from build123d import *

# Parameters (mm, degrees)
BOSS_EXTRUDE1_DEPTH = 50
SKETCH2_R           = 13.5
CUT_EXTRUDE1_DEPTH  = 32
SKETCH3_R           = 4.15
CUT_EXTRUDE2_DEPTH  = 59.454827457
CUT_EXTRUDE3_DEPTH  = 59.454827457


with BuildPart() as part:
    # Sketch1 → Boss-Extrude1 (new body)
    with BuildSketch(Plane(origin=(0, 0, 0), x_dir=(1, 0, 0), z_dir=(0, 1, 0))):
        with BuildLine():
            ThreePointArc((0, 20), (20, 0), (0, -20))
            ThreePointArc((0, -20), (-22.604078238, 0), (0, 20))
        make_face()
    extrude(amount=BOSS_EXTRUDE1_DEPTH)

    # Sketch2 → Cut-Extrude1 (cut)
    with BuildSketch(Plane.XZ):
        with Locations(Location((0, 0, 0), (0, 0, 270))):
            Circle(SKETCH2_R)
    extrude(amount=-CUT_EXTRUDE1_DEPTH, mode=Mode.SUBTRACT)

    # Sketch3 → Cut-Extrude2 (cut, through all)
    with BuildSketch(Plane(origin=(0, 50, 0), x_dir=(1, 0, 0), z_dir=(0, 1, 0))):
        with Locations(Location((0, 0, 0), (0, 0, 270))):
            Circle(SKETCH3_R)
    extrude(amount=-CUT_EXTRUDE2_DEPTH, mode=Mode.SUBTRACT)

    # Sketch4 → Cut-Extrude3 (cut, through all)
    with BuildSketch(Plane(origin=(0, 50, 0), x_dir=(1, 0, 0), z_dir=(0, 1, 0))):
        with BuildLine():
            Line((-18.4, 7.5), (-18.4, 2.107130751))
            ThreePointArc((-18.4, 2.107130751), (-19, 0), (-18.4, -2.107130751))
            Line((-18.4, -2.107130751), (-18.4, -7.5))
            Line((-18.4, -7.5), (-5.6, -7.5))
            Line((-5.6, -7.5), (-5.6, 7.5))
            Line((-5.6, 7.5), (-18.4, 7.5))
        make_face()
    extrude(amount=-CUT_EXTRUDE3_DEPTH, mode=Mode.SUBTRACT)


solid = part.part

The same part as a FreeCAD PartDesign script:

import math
import FreeCAD as App
import Part
import Sketcher

V = App.Vector
Q = App.Units.Quantity

doc = App.newDocument("Part")
body = doc.addObject("PartDesign::Body", "Body")

# Sketch on XZ plane
sketch1 = body.newObject("Sketcher::SketchObject", "Sketch")
sketch1.AttachmentSupport = (doc.getObject("XZ_Plane"), [""])
sketch1.MapMode = "FlatFace"
sketch1.addGeometry([
    Part.ArcOfCircle(Part.Circle(V(0, 0, 0), V(0, 0, 1), 20), math.radians(-90), math.radians(90)),
    Part.ArcOfCircle(Part.Circle(V(-2, 0, 0), V(0, 0, 1), 20), math.radians(83), math.radians(277)),
], False)
sketch1.addConstraint([
    Sketcher.Constraint("Coincident", 0, 1, 1, 2),
    Sketcher.Constraint("Coincident", 1, 1, 0, 2),
    Sketcher.Constraint("Coincident", 0, 3, -1, 1),
    Sketcher.Constraint("PointOnObject", 1, 3, -1),
    Sketcher.Constraint("PointOnObject", 0, 1, -2),
    Sketcher.Constraint("Radius", 0, Q("20 mm")),
    Sketcher.Constraint("Radius", 1, Q("20.15 mm")),
])
pad1 = body.newObject("PartDesign::Pad", "Pad")
pad1.Profile = sketch1
pad1.Length = 50
pad1.Reversed = True

# Sketch on XZ plane
sketch2 = body.newObject("Sketcher::SketchObject", "Sketch001")
sketch2.AttachmentSupport = (doc.getObject("XZ_Plane"), [""])
sketch2.MapMode = "FlatFace"
sketch2.addGeometry(Part.Circle(V(0, 0, 0), V(0, 0, 1), 14), False)
sketch2.addConstraint([
    Sketcher.Constraint("Coincident", 0, 3, -1, 1),
    Sketcher.Constraint("Diameter", 0, Q("27 mm")),
])
pocket1 = body.newObject("PartDesign::Pocket", "Pocket")
pocket1.Profile = sketch2
pocket1.Length = 32

# Sketch on XZ plane
sketch3 = body.newObject("Sketcher::SketchObject", "Sketch002")
sketch3.AttachmentSupport = (doc.getObject("XZ_Plane"), [""])
sketch3.MapMode = "FlatFace"
sketch3.AttachmentOffset = App.Placement(V(0, 0, -50), App.Rotation())
sketch3.addGeometry(Part.Circle(V(0, 0, 0), V(0, 0, 1), 4.2), False)
sketch3.addConstraint([
    Sketcher.Constraint("Coincident", 0, 3, -1, 1),
    Sketcher.Constraint("Diameter", 0, Q("8.3 mm")),
])
pocket2 = body.newObject("PartDesign::Pocket", "Pocket001")
pocket2.Profile = sketch3
pocket2.Type = "ThroughAll"
pocket2.Reversed = True

# Sketch on XZ plane
sketch4 = body.newObject("Sketcher::SketchObject", "Sketch003")
sketch4.AttachmentSupport = (doc.getObject("XZ_Plane"), [""])
sketch4.MapMode = "FlatFace"
sketch4.AttachmentOffset = App.Placement(V(0, 0, -50), App.Rotation())
sketch4.addGeometry([
    Part.LineSegment(V(-18.4, -7.5, 0), V(-18.4, -2.1, 0)),  # 0
    Part.ArcOfCircle(Part.Circle(V(-15, 0, 0), V(0, 0, 1), 4), math.radians(148), math.radians(212)),  # 1
    Part.LineSegment(V(-18.4, 2.1, 0), V(-18.4, 7.5, 0)),  # 2
    Part.LineSegment(V(-18.4, 7.5, 0), V(-5.6, 7.5, 0)),  # 3
    Part.LineSegment(V(-5.6, 7.5, 0), V(-5.6, -7.5, 0)),  # 4
    Part.LineSegment(V(-5.6, -7.5, 0), V(-18.4, -7.5, 0)),  # 5
], False)
sketch4.addConstraint([
    Sketcher.Constraint("Coincident", 0, 2, 1, 2),
    Sketcher.Constraint("Coincident", 1, 1, 2, 1),
    Sketcher.Constraint("Coincident", 2, 2, 3, 1),
    Sketcher.Constraint("Coincident", 3, 2, 4, 1),
    Sketcher.Constraint("Coincident", 4, 2, 5, 1),
    Sketcher.Constraint("Coincident", 5, 2, 0, 1),
    Sketcher.Constraint("Vertical", 0),
    Sketcher.Constraint("Vertical", 2),
    Sketcher.Constraint("Horizontal", 3),
    Sketcher.Constraint("Vertical", 4),
    Sketcher.Constraint("Horizontal", 5),
    Sketcher.Constraint("Symmetric", 0, 2, 1, 1, -1),
    Sketcher.Constraint("Equal", 0, 2),
    Sketcher.Constraint("Radius", 1, Q("4 mm")),
    Sketcher.Constraint("DistanceY", 4, 2, 4, 1, Q("15 mm")),
    Sketcher.Constraint("DistanceX", 3, 1, 3, 2, Q("12.8 mm")),
    Sketcher.Constraint("DistanceX", 1, 3, -1, 1, Q("15 mm")),
    Sketcher.Constraint("DistanceX", 0, 2, -1, 1, Q("18.4 mm")),
])
pocket3 = body.newObject("PartDesign::Pocket", "Pocket002")
pocket3.Profile = sketch4
pocket3.Type = "ThroughAll"
pocket3.Reversed = True

doc.recompute()
